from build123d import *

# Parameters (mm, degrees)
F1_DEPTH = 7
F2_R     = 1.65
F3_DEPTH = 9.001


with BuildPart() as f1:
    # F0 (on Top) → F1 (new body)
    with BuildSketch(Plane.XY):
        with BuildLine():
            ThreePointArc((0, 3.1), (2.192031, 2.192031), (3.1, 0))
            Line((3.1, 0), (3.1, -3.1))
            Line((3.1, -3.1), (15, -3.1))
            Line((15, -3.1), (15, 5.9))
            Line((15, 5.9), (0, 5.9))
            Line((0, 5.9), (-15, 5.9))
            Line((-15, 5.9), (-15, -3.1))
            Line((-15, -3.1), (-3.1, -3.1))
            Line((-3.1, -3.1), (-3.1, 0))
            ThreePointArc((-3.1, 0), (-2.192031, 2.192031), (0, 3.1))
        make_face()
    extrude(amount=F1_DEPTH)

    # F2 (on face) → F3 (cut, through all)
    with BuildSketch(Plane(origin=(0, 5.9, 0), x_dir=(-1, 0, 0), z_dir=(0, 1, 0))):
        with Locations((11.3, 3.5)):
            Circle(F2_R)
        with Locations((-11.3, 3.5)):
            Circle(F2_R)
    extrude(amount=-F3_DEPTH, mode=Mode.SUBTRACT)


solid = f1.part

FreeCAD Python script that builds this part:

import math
import FreeCAD as App
import Part
import Sketcher
from FreeCAD import Vector

doc = App.newDocument("Part")
body = doc.addObject("PartDesign::Body", "Body")

# Sketch on XY plane
sketch1 = doc.addObject("Sketcher::SketchObject", "Sketch")
body.addObject(sketch1)
sketch1.AttachmentSupport = (doc.XY_Plane, [""])
sketch1.MapMode = "FlatFace"
sketch1.addGeometry([
    Part.ArcOfCircle(Part.Circle(Vector(0, 0, 0), Vector(0, 0, 1), 3.1), math.radians(0), math.radians(90)),  # 0
    Part.LineSegment(Vector(3.1, 0, 0), Vector(3.1, -3.1, 0)),  # 1
    Part.LineSegment(Vector(3.1, -3.1, 0), Vector(15, -3.1, 0)),  # 2
    Part.LineSegment(Vector(15, -3.1, 0), Vector(15, 5.9, 0)),  # 3
    Part.LineSegment(Vector(15, 5.9, 0), Vector(-15, 5.9, 0)),  # 4
    Part.LineSegment(Vector(-15, 5.9, 0), Vector(-15, -3.1, 0)),  # 5
    Part.LineSegment(Vector(-15, -3.1, 0), Vector(-3.1, -3.1, 0)),  # 6
    Part.LineSegment(Vector(-3.1, -3.1, 0), Vector(-3.1, 0, 0)),  # 7
    Part.ArcOfCircle(Part.Circle(Vector(0, 0, 0), Vector(0, 0, 1), 3.1), math.radians(90), math.radians(180)),  # 8
], False)
sketch1.addConstraint([
    Sketcher.Constraint("Tangent", 0, 1, 1, 1),
    Sketcher.Constraint("Coincident", 1, 2, 2, 1),
    Sketcher.Constraint("Coincident", 2, 2, 3, 1),
    Sketcher.Constraint("Coincident", 3, 2, 4, 1),
    Sketcher.Constraint("Coincident", 4, 2, 5, 1),
    Sketcher.Constraint("Coincident", 5, 2, 6, 1),
    Sketcher.Constraint("Coincident", 6, 2, 7, 1),
    Sketcher.Constraint("Tangent", 7, 2, 8, 2),
    Sketcher.Constraint("Tangent", 8, 1, 0, 2),
    Sketcher.Constraint("Vertical", 1),
    Sketcher.Constraint("Horizontal", 2),
    Sketcher.Constraint("Vertical", 3),
    Sketcher.Constraint("Horizontal", 4),
    Sketcher.Constraint("Vertical", 5),
    Sketcher.Constraint("Horizontal", 6),
    Sketcher.Constraint("Vertical", 7),
    Sketcher.Constraint("Coincident", 0, 3, -1, 1),
    Sketcher.Constraint("Equal", 0, 8),
    Sketcher.Constraint("Symmetric", 2, 2, 5, 2, -2),
    Sketcher.Constraint("PointOnObject", 8, 1, -2),
    Sketcher.Constraint("Radius", 0, 3.1),
    Sketcher.Constraint("DistanceX", 4, 2, 4, 1, 30.0),
    Sketcher.Constraint("DistanceY", 3, 1, 3, 2, 9.0),
    Sketcher.Constraint("DistanceY", 1, 2, 1, 1, 3.1),
])
pad1 = doc.addObject("PartDesign::Pad", "Pad")
body.addObject(pad1)
pad1.Profile = sketch1
pad1.Length = 7

# Sketch on XZ plane
sketch2 = doc.addObject("Sketcher::SketchObject", "Sketch001")
body.addObject(sketch2)
sketch2.AttachmentSupport = (doc.XZ_Plane, [""])
sketch2.MapMode = "FlatFace"
sketch2.AttachmentOffset = App.Placement(Vector(0, 0, -5.9), App.Rotation())
sketch2.addGeometry([
    Part.Circle(Vector(-11.3, 3.5, 0), Vector(0, 0, 1), 1.6),
    Part.Circle(Vector(11.3, 3.5, 0), Vector(0, 0, 1), 1.6),
], False)
sketch2.addConstraint([
    Sketcher.Constraint("Equal", 0, 1),
    Sketcher.Constraint("Symmetric", 0, 3, 1, 3, -2),
    Sketcher.Constraint("Diameter", 0, 3.3),
    Sketcher.Constraint("DistanceX", 0, 3, -1, 1, 11.3),
    Sketcher.Constraint("DistanceY", -1, 1, 0, 3, 3.5),
])
pocket1 = doc.addObject("PartDesign::Pocket", "Pocket")
body.addObject(pocket1)
pocket1.Profile = sketch2
pocket1.Type = "ThroughAll"
pocket1.Reversed = True

doc.recompute()
